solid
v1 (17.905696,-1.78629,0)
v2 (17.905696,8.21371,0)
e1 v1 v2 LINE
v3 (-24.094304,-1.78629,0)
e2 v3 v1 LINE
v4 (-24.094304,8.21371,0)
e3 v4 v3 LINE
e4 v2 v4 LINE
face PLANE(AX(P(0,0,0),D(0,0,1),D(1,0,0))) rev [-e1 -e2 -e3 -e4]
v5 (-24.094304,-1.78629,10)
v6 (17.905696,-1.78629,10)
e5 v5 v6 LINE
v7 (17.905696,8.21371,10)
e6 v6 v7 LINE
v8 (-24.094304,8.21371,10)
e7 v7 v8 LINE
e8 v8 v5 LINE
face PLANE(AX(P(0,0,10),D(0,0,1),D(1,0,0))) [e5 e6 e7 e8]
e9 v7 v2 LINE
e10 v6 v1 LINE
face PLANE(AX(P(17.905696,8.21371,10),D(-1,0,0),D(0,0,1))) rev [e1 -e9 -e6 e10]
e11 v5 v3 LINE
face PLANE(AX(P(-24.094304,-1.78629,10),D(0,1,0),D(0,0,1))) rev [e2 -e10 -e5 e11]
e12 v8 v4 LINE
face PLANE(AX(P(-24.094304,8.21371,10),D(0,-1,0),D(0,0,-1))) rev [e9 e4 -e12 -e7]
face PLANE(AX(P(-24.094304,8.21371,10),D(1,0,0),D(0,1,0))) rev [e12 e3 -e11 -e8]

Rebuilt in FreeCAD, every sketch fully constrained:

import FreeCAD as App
import Part
import Sketcher
Q = App.Units.Quantity

doc = App.newDocument("Part")
body = doc.addObject("PartDesign::Body", "Body")

sketch1 = doc.addObject("Sketcher::SketchObject", "Sketch")
body.addObject(sketch1)
sketch1.AttachmentSupport = (doc.XY_Plane, [""])
sketch1.MapMode = "FlatFace"
sketch1.addGeometry(Part.LineSegment(App.Vector(-24, 8, 0), App.Vector(-24, -2, 0)), False)
sketch1.addGeometry(Part.LineSegment(App.Vector(-24, -2, 0), App.Vector(18, -2, 0)), False)
sketch1.addGeometry(Part.LineSegment(App.Vector(18, -2, 0), App.Vector(18, 8, 0)), False)
sketch1.addGeometry(Part.LineSegment(App.Vector(18, 8, 0), App.Vector(-24, 8, 0)), False)
sketch1.addConstraint(Sketcher.Constraint("Coincident", 0, 2, 1, 1))
sketch1.addConstraint(Sketcher.Constraint("Coincident", 1, 2, 2, 1))
sketch1.addConstraint(Sketcher.Constraint("Coincident", 2, 2, 3, 1))
sketch1.addConstraint(Sketcher.Constraint("Coincident", 3, 2, 0, 1))
sketch1.addConstraint(Sketcher.Constraint("Vertical", 0))
sketch1.addConstraint(Sketcher.Constraint("Horizontal", 1))
sketch1.addConstraint(Sketcher.Constraint("Vertical", 2))
sketch1.addConstraint(Sketcher.Constraint("Horizontal", 3))
sketch1.addConstraint(Sketcher.Constraint("DistanceX", 1, 1, 1, 2, Q("42 mm")))
sketch1.addConstraint(Sketcher.Constraint("DistanceY", 0, 2, 0, 1, Q("10 mm")))
sketch1.addConstraint(Sketcher.Constraint("DistanceY", 0, 2, -1, 1, Q("1.78629 mm")))
sketch1.addConstraint(Sketcher.Constraint("DistanceX", 0, 2, -1, 1, Q("24.094304 mm")))
pad1 = doc.addObject("PartDesign::Pad", "Pad")
body.addObject(pad1)
pad1.Profile = sketch1
pad1.Length = 10

doc.recompute()
